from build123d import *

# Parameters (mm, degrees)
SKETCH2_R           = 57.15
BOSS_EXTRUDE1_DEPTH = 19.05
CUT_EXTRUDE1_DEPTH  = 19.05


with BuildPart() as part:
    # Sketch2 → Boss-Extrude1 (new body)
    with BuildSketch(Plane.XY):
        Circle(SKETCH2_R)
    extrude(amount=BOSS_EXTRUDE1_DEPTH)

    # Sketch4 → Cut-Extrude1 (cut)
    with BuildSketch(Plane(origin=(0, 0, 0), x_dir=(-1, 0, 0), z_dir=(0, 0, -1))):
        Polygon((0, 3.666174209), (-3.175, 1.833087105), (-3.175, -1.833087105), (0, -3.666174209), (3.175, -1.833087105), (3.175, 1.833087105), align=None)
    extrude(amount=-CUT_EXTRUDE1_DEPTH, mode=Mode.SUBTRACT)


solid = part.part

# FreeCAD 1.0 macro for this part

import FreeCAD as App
import Part
import Sketcher

V = App.Vector
Q = App.Units.Quantity

doc = App.newDocument("Part")
body = doc.addObject("PartDesign::Body", "Body")

# Sketch on XY plane
sketch1 = body.newObject("Sketcher::SketchObject", "Sketch")
sketch1.AttachmentSupport = (doc.getObject("XY_Plane"), [""])
sketch1.MapMode = "FlatFace"
sketch1.addGeometry(Part.Circle(V(0, 0, 0), V(0, 0, 1), 57), False)
sketch1.addConstraint([
    Sketcher.Constraint("Coincident", 0, 3, -1, 1),
    Sketcher.Constraint("Diameter", 0, Q("4.5 in")),
])
pad1 = body.newObject("PartDesign::Pad", "Pad")
pad1.Profile = sketch1
pad1.Length = Q("0.75 in")

# Sketch on XY plane
sketch2 = body.newObject("Sketcher::SketchObject", "Sketch001")
sketch2.AttachmentSupport = (doc.getObject("XY_Plane"), [""])
sketch2.MapMode = "FlatFace"
sketch2.addGeometry([
    Part.LineSegment(V(0, 3.7, 0), V(3.2, 1.8, 0)),  # 0
    Part.LineSegment(V(3.2, 1.8, 0), V(3.2, -1.8, 0)),  # 1
    Part.LineSegment(V(3.2, -1.8, 0), V(0, -3.7, 0)),  # 2
    Part.LineSegment(V(0, -3.7, 0), V(-3.2, -1.8, 0)),  # 3
    Part.LineSegment(V(-3.2, -1.8, 0), V(-3.2, 1.8, 0)),  # 4
    Part.LineSegment(V(-3.2, 1.8, 0), V(0, 3.7, 0)),  # 5
], False)
sketch2.addConstraint([
    Sketcher.Constraint("Coincident", 0, 2, 1, 1),
    Sketcher.Constraint("Coincident", 1, 2, 2, 1),
    Sketcher.Constraint("Coincident", 2, 2, 3, 1),
    Sketcher.Constraint("Coincident", 3, 2, 4, 1),
    Sketcher.Constraint("Coincident", 4, 2, 5, 1),
    Sketcher.Constraint("Coincident", 5, 2, 0, 1),
    Sketcher.Constraint("Vertical", 1),
    Sketcher.Constraint("Vertical", 4),
    Sketcher.Constraint("Symmetric", 0, 2, 3, 2, -1, 1),
    Sketcher.Constraint("Symmetric", 2, 2, 5, 2, -1, 1),
    Sketcher.Constraint("PointOnObject", 2, 2, -2),
    Sketcher.Constraint("Parallel", 2, 5),
    Sketcher.Constraint("Horizontal", 1, 2, 3, 2),
    Sketcher.Constraint("Angle", 0, Q("-30 deg")),
    Sketcher.Constraint("DistanceX", 3, 2, 1, 2, Q("0.25 in")),
    Sketcher.Constraint("DistanceY", 1, 2, 1, 1, Q("3.666174 mm")),
])
pocket1 = body.newObject("PartDesign::Pocket", "Pocket")
pocket1.Profile = sketch2
pocket1.Length = Q("0.75 in")
pocket1.Reversed = True

doc.recompute()
